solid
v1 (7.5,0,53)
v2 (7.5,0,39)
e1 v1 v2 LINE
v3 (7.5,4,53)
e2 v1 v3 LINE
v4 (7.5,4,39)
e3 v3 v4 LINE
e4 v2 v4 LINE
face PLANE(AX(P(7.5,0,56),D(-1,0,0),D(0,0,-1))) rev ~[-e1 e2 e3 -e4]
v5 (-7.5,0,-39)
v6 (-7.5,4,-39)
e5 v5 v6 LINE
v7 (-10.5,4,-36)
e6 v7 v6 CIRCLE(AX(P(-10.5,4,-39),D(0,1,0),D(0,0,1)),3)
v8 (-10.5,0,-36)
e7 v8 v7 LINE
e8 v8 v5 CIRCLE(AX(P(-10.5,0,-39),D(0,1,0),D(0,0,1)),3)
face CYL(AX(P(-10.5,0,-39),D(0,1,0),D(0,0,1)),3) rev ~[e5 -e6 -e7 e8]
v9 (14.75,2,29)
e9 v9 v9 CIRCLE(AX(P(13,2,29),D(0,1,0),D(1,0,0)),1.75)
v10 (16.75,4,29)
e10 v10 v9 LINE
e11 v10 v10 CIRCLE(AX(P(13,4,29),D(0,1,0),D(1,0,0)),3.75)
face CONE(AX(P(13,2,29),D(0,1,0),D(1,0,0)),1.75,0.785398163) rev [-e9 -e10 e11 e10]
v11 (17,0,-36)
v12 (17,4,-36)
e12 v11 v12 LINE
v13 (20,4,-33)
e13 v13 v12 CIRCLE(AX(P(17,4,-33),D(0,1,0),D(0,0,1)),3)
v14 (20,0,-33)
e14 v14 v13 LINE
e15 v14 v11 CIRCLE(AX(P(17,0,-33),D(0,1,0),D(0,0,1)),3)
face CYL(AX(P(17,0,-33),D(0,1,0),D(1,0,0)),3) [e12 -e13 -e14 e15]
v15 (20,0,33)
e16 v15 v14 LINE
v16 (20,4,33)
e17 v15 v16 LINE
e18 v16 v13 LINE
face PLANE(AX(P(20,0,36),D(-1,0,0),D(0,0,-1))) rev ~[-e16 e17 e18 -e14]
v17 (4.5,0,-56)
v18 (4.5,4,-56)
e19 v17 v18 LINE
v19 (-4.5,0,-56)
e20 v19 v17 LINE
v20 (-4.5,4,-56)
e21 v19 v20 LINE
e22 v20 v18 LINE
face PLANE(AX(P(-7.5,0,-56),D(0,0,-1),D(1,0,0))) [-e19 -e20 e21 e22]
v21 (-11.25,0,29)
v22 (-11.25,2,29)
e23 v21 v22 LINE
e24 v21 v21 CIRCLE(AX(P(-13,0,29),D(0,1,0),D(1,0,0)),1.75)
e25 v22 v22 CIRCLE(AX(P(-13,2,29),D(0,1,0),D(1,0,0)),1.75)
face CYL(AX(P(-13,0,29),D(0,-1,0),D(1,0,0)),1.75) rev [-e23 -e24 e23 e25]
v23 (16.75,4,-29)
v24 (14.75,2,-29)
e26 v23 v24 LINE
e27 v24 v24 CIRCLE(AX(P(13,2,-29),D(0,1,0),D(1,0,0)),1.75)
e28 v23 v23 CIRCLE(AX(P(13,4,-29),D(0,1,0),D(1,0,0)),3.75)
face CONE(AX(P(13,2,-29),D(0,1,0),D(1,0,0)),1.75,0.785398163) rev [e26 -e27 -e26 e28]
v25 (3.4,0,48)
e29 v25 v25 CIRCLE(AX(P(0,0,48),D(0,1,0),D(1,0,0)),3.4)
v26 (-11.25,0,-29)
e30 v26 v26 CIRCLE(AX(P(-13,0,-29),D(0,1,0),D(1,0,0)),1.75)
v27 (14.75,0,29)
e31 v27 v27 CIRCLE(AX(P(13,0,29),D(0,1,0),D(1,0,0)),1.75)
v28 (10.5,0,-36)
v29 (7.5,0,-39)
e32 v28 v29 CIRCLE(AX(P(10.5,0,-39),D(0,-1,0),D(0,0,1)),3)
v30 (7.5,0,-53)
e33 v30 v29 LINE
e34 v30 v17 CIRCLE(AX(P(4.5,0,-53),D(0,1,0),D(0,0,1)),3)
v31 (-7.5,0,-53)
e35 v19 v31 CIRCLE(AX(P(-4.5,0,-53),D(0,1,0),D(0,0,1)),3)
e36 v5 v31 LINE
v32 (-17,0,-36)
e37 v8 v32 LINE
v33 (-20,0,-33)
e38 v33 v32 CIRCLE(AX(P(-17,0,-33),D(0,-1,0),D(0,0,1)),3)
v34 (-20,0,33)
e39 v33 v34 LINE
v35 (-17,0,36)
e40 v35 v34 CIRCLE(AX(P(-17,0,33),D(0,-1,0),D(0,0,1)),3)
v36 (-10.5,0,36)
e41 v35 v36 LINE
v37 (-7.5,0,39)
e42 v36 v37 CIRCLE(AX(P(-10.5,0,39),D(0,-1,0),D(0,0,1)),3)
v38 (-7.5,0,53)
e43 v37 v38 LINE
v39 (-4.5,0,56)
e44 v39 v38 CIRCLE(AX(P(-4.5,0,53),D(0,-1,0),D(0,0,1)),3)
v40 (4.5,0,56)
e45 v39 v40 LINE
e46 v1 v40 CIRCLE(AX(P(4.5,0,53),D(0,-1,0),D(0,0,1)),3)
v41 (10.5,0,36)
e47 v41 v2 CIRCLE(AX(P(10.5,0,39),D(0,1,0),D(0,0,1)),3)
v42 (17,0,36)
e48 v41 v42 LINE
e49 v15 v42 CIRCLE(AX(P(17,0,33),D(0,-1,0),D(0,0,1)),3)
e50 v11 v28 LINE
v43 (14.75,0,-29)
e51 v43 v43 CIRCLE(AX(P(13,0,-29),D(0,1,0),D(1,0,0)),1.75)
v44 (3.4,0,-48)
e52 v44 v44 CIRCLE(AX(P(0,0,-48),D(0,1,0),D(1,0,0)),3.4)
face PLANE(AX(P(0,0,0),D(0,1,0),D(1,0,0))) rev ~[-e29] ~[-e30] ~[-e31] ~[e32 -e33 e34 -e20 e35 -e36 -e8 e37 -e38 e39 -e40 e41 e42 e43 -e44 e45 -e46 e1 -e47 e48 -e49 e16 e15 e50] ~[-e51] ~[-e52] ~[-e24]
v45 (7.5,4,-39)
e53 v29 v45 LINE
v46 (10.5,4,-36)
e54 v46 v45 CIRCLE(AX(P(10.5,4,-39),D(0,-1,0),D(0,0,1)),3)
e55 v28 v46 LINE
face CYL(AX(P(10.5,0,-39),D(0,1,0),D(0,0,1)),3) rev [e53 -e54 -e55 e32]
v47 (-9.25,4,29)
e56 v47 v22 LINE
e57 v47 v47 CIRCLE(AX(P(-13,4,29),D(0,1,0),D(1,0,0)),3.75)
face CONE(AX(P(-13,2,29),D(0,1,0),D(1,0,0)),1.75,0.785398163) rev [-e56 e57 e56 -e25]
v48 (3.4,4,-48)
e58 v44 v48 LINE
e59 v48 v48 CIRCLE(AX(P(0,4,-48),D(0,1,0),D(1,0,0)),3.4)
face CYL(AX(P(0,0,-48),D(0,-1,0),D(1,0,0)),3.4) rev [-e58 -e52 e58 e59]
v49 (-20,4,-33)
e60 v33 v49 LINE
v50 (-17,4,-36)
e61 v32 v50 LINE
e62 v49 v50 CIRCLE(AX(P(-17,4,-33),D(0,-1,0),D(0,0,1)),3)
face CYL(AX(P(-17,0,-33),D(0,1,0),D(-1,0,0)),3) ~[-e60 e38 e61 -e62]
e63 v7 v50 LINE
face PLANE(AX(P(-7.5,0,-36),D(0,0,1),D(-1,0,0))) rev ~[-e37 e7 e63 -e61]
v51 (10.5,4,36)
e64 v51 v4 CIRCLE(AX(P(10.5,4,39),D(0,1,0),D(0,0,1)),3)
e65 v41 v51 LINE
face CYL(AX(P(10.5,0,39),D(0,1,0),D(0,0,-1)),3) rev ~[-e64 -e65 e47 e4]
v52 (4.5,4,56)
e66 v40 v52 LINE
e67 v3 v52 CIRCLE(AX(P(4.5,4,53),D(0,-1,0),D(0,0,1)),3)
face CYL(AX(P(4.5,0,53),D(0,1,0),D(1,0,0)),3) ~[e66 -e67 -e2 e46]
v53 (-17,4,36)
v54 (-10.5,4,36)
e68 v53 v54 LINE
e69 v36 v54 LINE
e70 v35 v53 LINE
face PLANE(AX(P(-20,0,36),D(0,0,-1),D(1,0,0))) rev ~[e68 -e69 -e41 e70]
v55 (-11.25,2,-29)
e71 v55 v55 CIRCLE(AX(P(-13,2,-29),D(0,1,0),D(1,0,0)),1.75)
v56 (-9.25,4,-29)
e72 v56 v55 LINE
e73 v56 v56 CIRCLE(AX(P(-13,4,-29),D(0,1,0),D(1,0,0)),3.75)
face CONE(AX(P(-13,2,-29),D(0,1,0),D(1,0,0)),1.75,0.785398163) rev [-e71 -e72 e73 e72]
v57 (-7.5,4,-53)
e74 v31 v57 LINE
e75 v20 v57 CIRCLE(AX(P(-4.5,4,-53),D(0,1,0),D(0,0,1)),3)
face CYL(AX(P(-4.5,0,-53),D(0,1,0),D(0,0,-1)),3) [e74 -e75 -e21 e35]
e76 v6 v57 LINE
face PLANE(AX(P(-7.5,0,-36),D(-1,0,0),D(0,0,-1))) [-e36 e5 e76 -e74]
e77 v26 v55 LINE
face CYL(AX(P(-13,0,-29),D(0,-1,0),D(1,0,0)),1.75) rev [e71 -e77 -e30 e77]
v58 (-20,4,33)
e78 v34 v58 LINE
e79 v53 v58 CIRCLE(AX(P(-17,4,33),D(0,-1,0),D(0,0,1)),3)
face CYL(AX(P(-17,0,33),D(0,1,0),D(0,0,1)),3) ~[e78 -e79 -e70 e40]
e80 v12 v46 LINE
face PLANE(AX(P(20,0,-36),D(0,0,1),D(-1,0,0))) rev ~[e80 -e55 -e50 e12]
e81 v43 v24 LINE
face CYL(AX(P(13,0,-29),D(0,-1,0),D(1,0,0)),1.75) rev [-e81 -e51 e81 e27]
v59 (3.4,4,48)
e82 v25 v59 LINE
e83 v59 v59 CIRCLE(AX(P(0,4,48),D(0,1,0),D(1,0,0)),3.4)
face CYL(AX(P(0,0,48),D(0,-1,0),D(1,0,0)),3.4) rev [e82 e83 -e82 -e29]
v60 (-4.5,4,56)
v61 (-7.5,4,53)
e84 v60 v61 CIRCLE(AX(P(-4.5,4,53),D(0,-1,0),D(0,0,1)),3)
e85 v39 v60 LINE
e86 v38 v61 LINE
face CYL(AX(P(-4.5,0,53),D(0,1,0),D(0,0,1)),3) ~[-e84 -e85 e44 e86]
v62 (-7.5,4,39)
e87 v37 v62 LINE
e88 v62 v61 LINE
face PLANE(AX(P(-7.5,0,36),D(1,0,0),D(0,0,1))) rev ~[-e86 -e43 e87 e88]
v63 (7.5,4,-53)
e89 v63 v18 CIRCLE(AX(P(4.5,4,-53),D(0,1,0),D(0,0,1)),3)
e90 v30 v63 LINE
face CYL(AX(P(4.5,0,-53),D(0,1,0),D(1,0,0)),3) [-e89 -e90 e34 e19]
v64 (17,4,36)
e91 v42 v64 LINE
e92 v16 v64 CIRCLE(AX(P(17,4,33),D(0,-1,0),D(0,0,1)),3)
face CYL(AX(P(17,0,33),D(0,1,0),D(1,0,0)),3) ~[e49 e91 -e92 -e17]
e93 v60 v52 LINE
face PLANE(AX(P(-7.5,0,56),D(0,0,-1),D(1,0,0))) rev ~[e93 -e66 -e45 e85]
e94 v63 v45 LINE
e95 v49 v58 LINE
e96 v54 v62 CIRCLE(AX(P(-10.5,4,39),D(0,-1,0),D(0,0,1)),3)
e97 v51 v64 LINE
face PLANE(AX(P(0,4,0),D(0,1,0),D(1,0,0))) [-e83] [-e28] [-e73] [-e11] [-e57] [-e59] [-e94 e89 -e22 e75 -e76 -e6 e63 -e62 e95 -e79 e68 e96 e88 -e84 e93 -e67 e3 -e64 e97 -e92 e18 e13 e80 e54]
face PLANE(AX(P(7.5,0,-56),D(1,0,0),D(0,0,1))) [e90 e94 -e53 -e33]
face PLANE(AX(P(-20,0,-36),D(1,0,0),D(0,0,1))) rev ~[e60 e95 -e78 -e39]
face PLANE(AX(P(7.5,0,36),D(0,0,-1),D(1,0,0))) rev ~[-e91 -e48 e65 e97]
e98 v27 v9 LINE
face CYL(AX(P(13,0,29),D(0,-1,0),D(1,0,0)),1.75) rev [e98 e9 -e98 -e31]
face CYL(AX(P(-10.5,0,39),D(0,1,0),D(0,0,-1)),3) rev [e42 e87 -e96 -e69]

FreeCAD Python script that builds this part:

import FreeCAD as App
import Part
import Sketcher
Q = App.Units.Quantity


def edges_at(feature, points):
    """Names of the edges that pass closest to the given points."""
    edges = feature.Shape.Edges
    near = lambda p: min(range(len(edges)), key=lambda i: edges[i].distToShape(Part.Vertex(*p))[0])
    return sorted({f"Edge{near(p) + 1}" for p in points})

doc = App.newDocument("Part")
params = doc.addObject("Spreadsheet::Sheet", "Params")
for row, (alias, value) in enumerate([
    ("sketch1_diameter", "3.5 mm"),
    ("sketch1_diameter2", "6.8 mm"),
    ("sketch1_width", "15 mm"),
    ("sketch1_height", "20 mm"),
    ("pad1_length", "4 mm"),
    ("fillet_radius", "3 mm"),
    ("chamfer_size", "2 mm"),
], start=1):
    params.set(f"A{row}", alias)
    params.set(f"B{row}", "=" + value)
    params.setAlias(f"B{row}", alias)

body = doc.addObject("PartDesign::Body", "Body")

sketch1 = body.newObject("Sketcher::SketchObject", "Sketch")
sketch1.AttachmentSupport = (doc.getObject("XZ_Plane"), [""])
sketch1.MapMode = "FlatFace"
sketch1.addGeometry(Part.LineSegment(App.Vector(20, 36, 0), App.Vector(20, -36, 0)), False)
sketch1.addGeometry(Part.LineSegment(App.Vector(20, -36, 0), App.Vector(7.5, -36, 0)), False)
sketch1.addGeometry(Part.LineSegment(App.Vector(7.5, -36, 0), App.Vector(7.5, -56, 0)), False)
sketch1.addGeometry(Part.LineSegment(App.Vector(7.5, -56, 0), App.Vector(-7.5, -56, 0)), False)
sketch1.addGeometry(Part.LineSegment(App.Vector(-7.5, -56, 0), App.Vector(-7.5, -36, 0)), False)
sketch1.addGeometry(Part.LineSegment(App.Vector(-7.5, -36, 0), App.Vector(-20, -36, 0)), False)
sketch1.addGeometry(Part.LineSegment(App.Vector(-20, -36, 0), App.Vector(-20, 36, 0)), False)
sketch1.addGeometry(Part.LineSegment(App.Vector(-20, 36, 0), App.Vector(-7.5, 36, 0)), False)
sketch1.addGeometry(Part.LineSegment(App.Vector(-7.5, 36, 0), App.Vector(-7.5, 56, 0)), False)
sketch1.addGeometry(Part.LineSegment(App.Vector(-7.5, 56, 0), App.Vector(7.5, 56, 0)), False)
sketch1.addGeometry(Part.LineSegment(App.Vector(7.5, 56, 0), App.Vector(7.5, 36, 0)), False)
sketch1.addGeometry(Part.LineSegment(App.Vector(7.5, 36, 0), App.Vector(20, 36, 0)), False)
sketch1.addGeometry(Part.Circle(App.Vector(-13, 29, 0), App.Vector(0, 0, 1), 1.8), False)
sketch1.addGeometry(Part.Circle(App.Vector(13, 29, 0), App.Vector(0, 0, 1), 1.8), False)
sketch1.addGeometry(Part.Circle(App.Vector(-13, -29, 0), App.Vector(0, 0, 1), 1.8), False)
sketch1.addGeometry(Part.Circle(App.Vector(13, -29, 0), App.Vector(0, 0, 1), 1.8), False)
sketch1.addGeometry(Part.Circle(App.Vector(0, 48, 0), App.Vector(0, 0, 1), 3.4), False)
sketch1.addGeometry(Part.Circle(App.Vector(0, -48, 0), App.Vector(0, 0, 1), 3.4), False)
sketch1.addConstraint(Sketcher.Constraint("Coincident", 0, 2, 1, 1))
sketch1.addConstraint(Sketcher.Constraint("Coincident", 1, 2, 2, 1))
sketch1.addConstraint(Sketcher.Constraint("Coincident", 2, 2, 3, 1))
sketch1.addConstraint(Sketcher.Constraint("Coincident", 3, 2, 4, 1))
sketch1.addConstraint(Sketcher.Constraint("Coincident", 4, 2, 5, 1))
sketch1.addConstraint(Sketcher.Constraint("Coincident", 5, 2, 6, 1))
sketch1.addConstraint(Sketcher.Constraint("Coincident", 6, 2, 7, 1))
sketch1.addConstraint(Sketcher.Constraint("Coincident", 7, 2, 8, 1))
sketch1.addConstraint(Sketcher.Constraint("Coincident", 8, 2, 9, 1))
sketch1.addConstraint(Sketcher.Constraint("Coincident", 9, 2, 10, 1))
sketch1.addConstraint(Sketcher.Constraint("Coincident", 10, 2, 11, 1))
sketch1.addConstraint(Sketcher.Constraint("Coincident", 11, 2, 0, 1))
sketch1.addConstraint(Sketcher.Constraint("Vertical", 0))
sketch1.addConstraint(Sketcher.Constraint("Horizontal", 1))
sketch1.addConstraint(Sketcher.Constraint("Vertical", 2))
sketch1.addConstraint(Sketcher.Constraint("Horizontal", 3))
sketch1.addConstraint(Sketcher.Constraint("Vertical", 4))
sketch1.addConstraint(Sketcher.Constraint("Horizontal", 5))
sketch1.addConstraint(Sketcher.Constraint("Vertical", 6))
sketch1.addConstraint(Sketcher.Constraint("Horizontal", 7))
sketch1.addConstraint(Sketcher.Constraint("Vertical", 8))
sketch1.addConstraint(Sketcher.Constraint("Horizontal", 9))
sketch1.addConstraint(Sketcher.Constraint("Vertical", 10))
sketch1.addConstraint(Sketcher.Constraint("Horizontal", 11))
sketch1.addConstraint(Sketcher.Constraint("Equal", 12, 13))
sketch1.addConstraint(Sketcher.Constraint("Equal", 13, 14))
sketch1.addConstraint(Sketcher.Constraint("Equal", 14, 15))
sketch1.addConstraint(Sketcher.Constraint("Equal", 16, 17))
sketch1.addConstraint(Sketcher.Constraint("Symmetric", 13, 3, 14, 3, -1, 1))
sketch1.addConstraint(Sketcher.Constraint("Symmetric", 12, 3, 15, 3, -1, 1))
sketch1.addConstraint(Sketcher.Constraint("Symmetric", 16, 3, 17, 3, -1, 1))
sketch1.addConstraint(Sketcher.Constraint("Symmetric", 0, 2, 6, 2, -1, 1))
sketch1.addConstraint(Sketcher.Constraint("Symmetric", 2, 2, 8, 2, -1, 1))
sketch1.addConstraint(Sketcher.Constraint("Symmetric", 4, 2, 10, 2, -1, 1))
sketch1.addConstraint(Sketcher.Constraint("Symmetric", 12, 3, 13, 3, -2))
sketch1.addConstraint(Sketcher.Constraint("Symmetric", 1, 2, 4, 2, -2))
sketch1.addConstraint(Sketcher.Constraint("PointOnObject", 16, 3, -2))
sketch1.addConstraint(Sketcher.Constraint("Diameter", 12, Q("3.5 mm")))
sketch1.addConstraint(Sketcher.Constraint("Diameter", 16, Q("6.8 mm")))
sketch1.addConstraint(Sketcher.Constraint("DistanceX", 3, 2, 3, 1, Q("15 mm")))
sketch1.addConstraint(Sketcher.Constraint("DistanceY", 2, 2, 2, 1, Q("20 mm")))
sketch1.addConstraint(Sketcher.Constraint("DistanceX", -1, 1, 0, 2, Q("20 mm")))
sketch1.addConstraint(Sketcher.Constraint("DistanceX", 12, 3, 13, 3, Q("26 mm")))
sketch1.addConstraint(Sketcher.Constraint("DistanceY", 14, 3, 12, 3, Q("58 mm")))
sketch1.addConstraint(Sketcher.Constraint("DistanceY", 0, 2, 15, 3, Q("7 mm")))
sketch1.addConstraint(Sketcher.Constraint("DistanceY", 17, 3, 0, 2, Q("12 mm")))
sketch1.setExpression("Constraints[37]", "Params.sketch1_diameter")
sketch1.setExpression("Constraints[38]", "Params.sketch1_diameter2")
sketch1.setExpression("Constraints[39]", "Params.sketch1_width")
sketch1.setExpression("Constraints[40]", "Params.sketch1_height")
pad1 = body.newObject("PartDesign::Pad", "Pad")
pad1.Profile = sketch1
pad1.setExpression("Length", "Params.pad1_length")
pad1.Reversed = True
doc.recompute()

fillet = body.newObject("PartDesign::Fillet", "Fillet")
fillet.Base = (pad1, edges_at(pad1, [
    (7.5, 2, 36),
    (20, 2, 36),
    (7.5, 2, 56),
    (-7.5, 2, 56),
    (-20, 2, 36),
    (-7.5, 2, 36),
    (20, 2, -36),
    (7.5, 2, -36),
    (7.5, 2, -56),
    (-7.5, 2, -56),
    (-20, 2, -36),
    (-7.5, 2, -36),
]))
fillet.setExpression("Radius", "Params.fillet_radius")
doc.recompute()

chamfer = body.newObject("PartDesign::Chamfer", "Chamfer")
chamfer.Base = (fillet, edges_at(fillet, [
    (-14.632, 4, -29.633),
    (11.368, 4, -29.633),
    (11.368, 4, 28.367),
    (-14.632, 4, 28.367),
]))
chamfer.setExpression("Size", "Params.chamfer_size")

doc.recompute()
